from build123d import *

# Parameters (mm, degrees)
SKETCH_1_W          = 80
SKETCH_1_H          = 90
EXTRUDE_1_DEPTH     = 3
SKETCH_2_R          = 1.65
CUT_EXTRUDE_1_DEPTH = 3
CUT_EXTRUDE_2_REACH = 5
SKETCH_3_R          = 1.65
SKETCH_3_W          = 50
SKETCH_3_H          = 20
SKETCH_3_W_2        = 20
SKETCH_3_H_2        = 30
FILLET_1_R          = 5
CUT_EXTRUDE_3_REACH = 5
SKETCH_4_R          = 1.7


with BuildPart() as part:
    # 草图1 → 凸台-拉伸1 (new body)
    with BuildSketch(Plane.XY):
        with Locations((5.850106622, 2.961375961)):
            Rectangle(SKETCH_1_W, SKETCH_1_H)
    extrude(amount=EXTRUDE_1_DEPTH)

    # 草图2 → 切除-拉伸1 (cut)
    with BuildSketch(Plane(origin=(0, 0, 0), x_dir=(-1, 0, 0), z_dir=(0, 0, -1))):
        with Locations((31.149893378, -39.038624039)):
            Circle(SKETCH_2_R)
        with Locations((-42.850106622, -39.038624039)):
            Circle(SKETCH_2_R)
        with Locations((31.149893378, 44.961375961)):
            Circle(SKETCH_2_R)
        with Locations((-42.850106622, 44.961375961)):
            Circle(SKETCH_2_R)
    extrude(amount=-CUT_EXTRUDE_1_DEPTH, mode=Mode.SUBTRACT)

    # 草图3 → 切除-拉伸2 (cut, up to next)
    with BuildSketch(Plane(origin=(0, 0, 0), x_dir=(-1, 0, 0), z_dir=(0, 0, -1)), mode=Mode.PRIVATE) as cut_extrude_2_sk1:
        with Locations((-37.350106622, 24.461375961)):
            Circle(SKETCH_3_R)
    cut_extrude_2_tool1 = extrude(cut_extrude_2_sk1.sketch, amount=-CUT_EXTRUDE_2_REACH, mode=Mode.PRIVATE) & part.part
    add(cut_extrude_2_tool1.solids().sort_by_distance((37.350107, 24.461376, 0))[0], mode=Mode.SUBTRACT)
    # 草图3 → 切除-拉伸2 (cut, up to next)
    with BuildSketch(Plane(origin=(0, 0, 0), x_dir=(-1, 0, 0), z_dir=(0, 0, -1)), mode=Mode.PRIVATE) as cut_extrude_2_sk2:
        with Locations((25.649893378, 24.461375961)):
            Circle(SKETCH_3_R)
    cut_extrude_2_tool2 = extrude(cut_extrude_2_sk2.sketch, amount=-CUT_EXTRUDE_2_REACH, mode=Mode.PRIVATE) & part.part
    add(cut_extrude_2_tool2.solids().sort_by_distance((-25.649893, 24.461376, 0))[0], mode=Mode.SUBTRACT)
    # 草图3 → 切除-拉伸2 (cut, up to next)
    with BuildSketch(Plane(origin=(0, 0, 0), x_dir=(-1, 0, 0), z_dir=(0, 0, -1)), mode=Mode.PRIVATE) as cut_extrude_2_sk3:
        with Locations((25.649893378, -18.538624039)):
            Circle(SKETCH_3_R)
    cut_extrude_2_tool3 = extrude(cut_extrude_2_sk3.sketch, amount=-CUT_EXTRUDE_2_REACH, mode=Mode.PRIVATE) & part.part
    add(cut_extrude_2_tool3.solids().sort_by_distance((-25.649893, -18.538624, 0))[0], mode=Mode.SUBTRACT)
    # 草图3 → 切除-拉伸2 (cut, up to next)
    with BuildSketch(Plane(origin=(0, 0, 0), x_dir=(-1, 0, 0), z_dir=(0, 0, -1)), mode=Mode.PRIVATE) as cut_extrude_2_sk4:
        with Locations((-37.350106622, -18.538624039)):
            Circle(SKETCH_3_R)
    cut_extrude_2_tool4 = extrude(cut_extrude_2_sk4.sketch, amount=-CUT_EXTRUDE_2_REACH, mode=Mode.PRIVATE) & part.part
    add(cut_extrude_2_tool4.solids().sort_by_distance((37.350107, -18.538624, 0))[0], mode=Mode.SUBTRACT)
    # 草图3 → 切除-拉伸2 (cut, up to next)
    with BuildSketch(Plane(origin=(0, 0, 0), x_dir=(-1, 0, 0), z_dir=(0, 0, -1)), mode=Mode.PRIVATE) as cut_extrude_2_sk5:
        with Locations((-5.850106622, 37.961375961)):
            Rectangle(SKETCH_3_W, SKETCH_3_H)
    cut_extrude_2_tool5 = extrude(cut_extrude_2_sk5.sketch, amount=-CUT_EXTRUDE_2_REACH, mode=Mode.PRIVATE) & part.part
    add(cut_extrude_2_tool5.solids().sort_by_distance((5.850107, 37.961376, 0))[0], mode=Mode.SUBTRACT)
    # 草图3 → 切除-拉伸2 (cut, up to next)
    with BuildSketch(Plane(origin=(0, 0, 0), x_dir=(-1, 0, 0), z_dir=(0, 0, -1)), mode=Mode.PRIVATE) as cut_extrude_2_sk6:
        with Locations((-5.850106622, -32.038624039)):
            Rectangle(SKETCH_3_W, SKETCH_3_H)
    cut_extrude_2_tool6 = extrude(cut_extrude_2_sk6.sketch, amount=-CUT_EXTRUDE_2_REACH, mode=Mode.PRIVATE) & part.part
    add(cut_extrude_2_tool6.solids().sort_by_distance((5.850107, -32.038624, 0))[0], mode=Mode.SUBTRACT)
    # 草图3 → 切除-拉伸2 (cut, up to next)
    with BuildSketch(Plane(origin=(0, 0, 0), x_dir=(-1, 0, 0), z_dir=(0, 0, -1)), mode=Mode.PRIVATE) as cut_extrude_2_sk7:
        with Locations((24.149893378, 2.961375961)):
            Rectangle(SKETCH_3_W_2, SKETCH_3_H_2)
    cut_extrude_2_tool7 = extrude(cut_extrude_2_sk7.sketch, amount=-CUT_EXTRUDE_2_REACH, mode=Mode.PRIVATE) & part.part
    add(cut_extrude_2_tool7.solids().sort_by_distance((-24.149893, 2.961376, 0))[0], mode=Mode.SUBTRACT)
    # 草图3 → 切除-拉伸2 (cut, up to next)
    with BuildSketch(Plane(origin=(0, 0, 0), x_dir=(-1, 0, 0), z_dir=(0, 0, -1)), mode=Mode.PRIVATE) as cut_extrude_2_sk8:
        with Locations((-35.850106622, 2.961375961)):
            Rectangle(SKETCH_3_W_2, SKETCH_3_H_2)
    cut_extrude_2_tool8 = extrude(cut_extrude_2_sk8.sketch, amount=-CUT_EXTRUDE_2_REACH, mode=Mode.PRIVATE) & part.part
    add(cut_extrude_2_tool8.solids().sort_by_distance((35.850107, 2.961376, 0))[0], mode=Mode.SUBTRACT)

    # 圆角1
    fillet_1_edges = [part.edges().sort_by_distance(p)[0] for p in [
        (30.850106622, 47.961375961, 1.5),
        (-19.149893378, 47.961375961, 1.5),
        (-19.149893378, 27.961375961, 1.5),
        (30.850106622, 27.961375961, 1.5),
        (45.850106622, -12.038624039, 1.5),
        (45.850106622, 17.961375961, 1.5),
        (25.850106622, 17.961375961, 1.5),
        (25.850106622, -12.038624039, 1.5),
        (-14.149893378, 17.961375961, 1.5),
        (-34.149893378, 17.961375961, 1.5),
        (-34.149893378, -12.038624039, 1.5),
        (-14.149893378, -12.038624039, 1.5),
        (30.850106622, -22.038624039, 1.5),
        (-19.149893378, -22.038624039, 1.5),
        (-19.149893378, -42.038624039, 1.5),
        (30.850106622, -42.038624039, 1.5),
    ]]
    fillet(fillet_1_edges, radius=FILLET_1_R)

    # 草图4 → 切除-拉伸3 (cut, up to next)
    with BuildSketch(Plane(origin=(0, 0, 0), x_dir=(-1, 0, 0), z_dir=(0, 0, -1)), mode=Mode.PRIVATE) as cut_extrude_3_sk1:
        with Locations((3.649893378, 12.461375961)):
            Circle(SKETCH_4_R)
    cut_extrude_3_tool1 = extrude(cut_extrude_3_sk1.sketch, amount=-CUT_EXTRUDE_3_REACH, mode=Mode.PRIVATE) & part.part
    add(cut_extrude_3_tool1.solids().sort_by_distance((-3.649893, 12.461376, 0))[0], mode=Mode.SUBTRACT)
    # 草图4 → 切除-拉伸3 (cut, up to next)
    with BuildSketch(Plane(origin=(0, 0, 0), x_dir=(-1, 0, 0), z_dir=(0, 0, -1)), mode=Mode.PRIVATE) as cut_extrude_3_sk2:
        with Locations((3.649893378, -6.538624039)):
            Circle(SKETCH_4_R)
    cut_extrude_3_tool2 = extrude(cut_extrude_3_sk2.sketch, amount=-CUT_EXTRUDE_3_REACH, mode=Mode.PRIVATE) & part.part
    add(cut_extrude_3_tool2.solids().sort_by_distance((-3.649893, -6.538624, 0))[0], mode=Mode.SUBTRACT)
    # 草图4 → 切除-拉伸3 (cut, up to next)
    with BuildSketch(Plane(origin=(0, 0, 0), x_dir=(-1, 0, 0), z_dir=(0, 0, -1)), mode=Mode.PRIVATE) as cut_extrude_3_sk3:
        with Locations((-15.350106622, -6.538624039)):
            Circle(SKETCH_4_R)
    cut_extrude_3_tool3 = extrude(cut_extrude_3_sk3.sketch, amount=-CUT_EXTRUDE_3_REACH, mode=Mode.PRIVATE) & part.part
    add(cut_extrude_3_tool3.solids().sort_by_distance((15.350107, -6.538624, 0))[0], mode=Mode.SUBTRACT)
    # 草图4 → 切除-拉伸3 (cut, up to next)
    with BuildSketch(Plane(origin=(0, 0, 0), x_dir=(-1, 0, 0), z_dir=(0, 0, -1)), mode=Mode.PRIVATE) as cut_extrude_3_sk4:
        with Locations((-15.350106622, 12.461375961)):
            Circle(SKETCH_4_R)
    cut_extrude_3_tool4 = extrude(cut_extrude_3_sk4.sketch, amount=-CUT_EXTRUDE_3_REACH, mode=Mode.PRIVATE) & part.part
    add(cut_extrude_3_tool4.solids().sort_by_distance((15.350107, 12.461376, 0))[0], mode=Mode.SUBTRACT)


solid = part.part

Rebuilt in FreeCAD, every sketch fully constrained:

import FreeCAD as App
import Part
import Sketcher
from FreeCAD import Vector
Q = App.Units.Quantity


def edges_at(feature, points):
    """Names of the edges that pass closest to the given points."""
    edges = feature.Shape.Edges
    near = lambda p: min(range(len(edges)), key=lambda i: edges[i].distToShape(Part.Vertex(*p))[0])
    return sorted({f"Edge{near(p) + 1}" for p in points})

doc = App.newDocument("Part")
params = doc.addObject("Spreadsheet::Sheet", "Params")
for row, (alias, value) in enumerate([
    ("sketch1_width", "80 mm"),
    ("sketch1_height", "90 mm"),
    ("pad1_length", "3 mm"),
    ("sketch2_diameter", "3.3 mm"),
    ("pocket1_length", "3 mm"),
    ("sketch3_diameter", "3.3 mm"),
    ("sketch4_diameter", "3.3 mm"),
    ("sketch5_diameter", "3.3 mm"),
    ("sketch6_diameter", "3.3 mm"),
    ("sketch7_width", "50 mm"),
    ("sketch7_height", "20 mm"),
    ("sketch8_width", "50 mm"),
    ("sketch8_height", "20 mm"),
    ("sketch9_width", "20 mm"),
    ("sketch9_height", "30 mm"),
    ("sketch10_width", "20 mm"),
    ("sketch10_height", "30 mm"),
    ("fillet_radius", "5 mm"),
    ("sketch11_diameter", "3.4 mm"),
    ("sketch12_diameter", "3.4 mm"),
    ("sketch13_diameter", "3.4 mm"),
    ("sketch14_diameter", "3.4 mm"),
], start=1):
    params.set(f"A{row}", alias)
    params.set(f"B{row}", "=" + value)
    params.setAlias(f"B{row}", alias)

body = doc.addObject("PartDesign::Body", "Body")

sketch1 = doc.addObject("Sketcher::SketchObject", "Sketch")
body.addObject(sketch1)
sketch1.AttachmentSupport = (doc.XY_Plane, [""])
sketch1.MapMode = "FlatFace"
sketch1.addGeometry(Part.LineSegment(Vector(-34.149893, 47.961376, 0), Vector(-34.149893, -42.038624, 0)), False)
sketch1.addGeometry(Part.LineSegment(Vector(-34.149893, -42.038624, 0), Vector(45.850107, -42.038624, 0)), False)
sketch1.addGeometry(Part.LineSegment(Vector(45.850107, -42.038624, 0), Vector(45.850107, 47.961376, 0)), False)
sketch1.addGeometry(Part.LineSegment(Vector(45.850107, 47.961376, 0), Vector(-34.149893, 47.961376, 0)), False)
sketch1.addConstraint(Sketcher.Constraint("Coincident", 0, 2, 1, 1))
sketch1.addConstraint(Sketcher.Constraint("Coincident", 1, 2, 2, 1))
sketch1.addConstraint(Sketcher.Constraint("Coincident", 2, 2, 3, 1))
sketch1.addConstraint(Sketcher.Constraint("Coincident", 3, 2, 0, 1))
sketch1.addConstraint(Sketcher.Constraint("Vertical", 0))
sketch1.addConstraint(Sketcher.Constraint("Horizontal", 1))
sketch1.addConstraint(Sketcher.Constraint("Vertical", 2))
sketch1.addConstraint(Sketcher.Constraint("Horizontal", 3))
sketch1.addConstraint(Sketcher.Constraint("DistanceX", 1, 1, 1, 2, Q("80 mm")))
sketch1.addConstraint(Sketcher.Constraint("DistanceY", 0, 2, 0, 1, Q("90 mm")))
sketch1.addConstraint(Sketcher.Constraint("DistanceX", 0, 2, -1, 1, Q("34.149893 mm")))
sketch1.addConstraint(Sketcher.Constraint("DistanceY", 0, 2, -1, 1, Q("42.038624 mm")))
sketch1.setExpression("Constraints[8]", "Params.sketch1_width")
sketch1.setExpression("Constraints[9]", "Params.sketch1_height")
pad1 = doc.addObject("PartDesign::Pad", "Pad")
body.addObject(pad1)
pad1.Profile = sketch1
pad1.setExpression("Length", "Params.pad1_length")

sketch2 = doc.addObject("Sketcher::SketchObject", "Sketch001")
body.addObject(sketch2)
sketch2.AttachmentSupport = (doc.XY_Plane, [""])
sketch2.MapMode = "FlatFace"
sketch2.addGeometry(Part.Circle(Vector(-31.149893, -39.038624, 0), Vector(0, 0, 1), 1.65), False)
sketch2.addGeometry(Part.Circle(Vector(42.850107, -39.038624, 0), Vector(0, 0, 1), 1.65), False)
sketch2.addGeometry(Part.Circle(Vector(-31.149893, 44.961376, 0), Vector(0, 0, 1), 1.65), False)
sketch2.addGeometry(Part.Circle(Vector(42.850107, 44.961376, 0), Vector(0, 0, 1), 1.65), False)
sketch2.addConstraint(Sketcher.Constraint("Equal", 0, 1))
sketch2.addConstraint(Sketcher.Constraint("Equal", 1, 2))
sketch2.addConstraint(Sketcher.Constraint("Equal", 2, 3))
sketch2.addConstraint(Sketcher.Constraint("Horizontal", 0, 3, 1, 3))
sketch2.addConstraint(Sketcher.Constraint("Horizontal", 2, 3, 3, 3))
sketch2.addConstraint(Sketcher.Constraint("Vertical", 0, 3, 2, 3))
sketch2.addConstraint(Sketcher.Constraint("Vertical", 1, 3, 3, 3))
sketch2.addConstraint(Sketcher.Constraint("Diameter", 0, Q("3.3 mm")))
sketch2.addConstraint(Sketcher.Constraint("DistanceX", 0, 3, 1, 3, Q("74 mm")))
sketch2.addConstraint(Sketcher.Constraint("DistanceY", 0, 3, 2, 3, Q("84 mm")))
sketch2.addConstraint(Sketcher.Constraint("DistanceX", 0, 3, -1, 1, Q("31.149893 mm")))
sketch2.addConstraint(Sketcher.Constraint("DistanceY", 0, 3, -1, 1, Q("39.038624 mm")))
sketch2.setExpression("Constraints[7]", "Params.sketch2_diameter")
pocket1 = doc.addObject("PartDesign::Pocket", "Pocket")
body.addObject(pocket1)
pocket1.Profile = sketch2
pocket1.setExpression("Length", "Params.pocket1_length")
pocket1.Reversed = True

sketch3 = doc.addObject("Sketcher::SketchObject", "Sketch002")
body.addObject(sketch3)
sketch3.AttachmentSupport = (doc.XY_Plane, [""])
sketch3.MapMode = "FlatFace"
sketch3.addGeometry(Part.Circle(Vector(37.350107, 24.461376, 0), Vector(0, 0, 1), 1.65), False)
sketch3.addConstraint(Sketcher.Constraint("Diameter", 0, Q("3.3 mm")))
sketch3.addConstraint(Sketcher.Constraint("DistanceX", -1, 1, 0, 3, Q("37.350107 mm")))
sketch3.addConstraint(Sketcher.Constraint("DistanceY", -1, 1, 0, 3, Q("24.461376 mm")))
sketch3.setExpression("Constraints[0]", "Params.sketch3_diameter")
pocket2 = doc.addObject("PartDesign::Pocket", "Pocket001")
body.addObject(pocket2)
pocket2.Profile = sketch3
pocket2.Type = "UpToFirst"
pocket2.Reversed = True

sketch4 = doc.addObject("Sketcher::SketchObject", "Sketch003")
body.addObject(sketch4)
sketch4.AttachmentSupport = (doc.XY_Plane, [""])
sketch4.MapMode = "FlatFace"
sketch4.addGeometry(Part.Circle(Vector(-25.649893, 24.461376, 0), Vector(0, 0, 1), 1.65), False)
sketch4.addConstraint(Sketcher.Constraint("Diameter", 0, Q("3.3 mm")))
sketch4.addConstraint(Sketcher.Constraint("DistanceX", 0, 3, -1, 1, Q("25.649893 mm")))
sketch4.addConstraint(Sketcher.Constraint("DistanceY", -1, 1, 0, 3, Q("24.461376 mm")))
sketch4.setExpression("Constraints[0]", "Params.sketch4_diameter")
pocket3 = doc.addObject("PartDesign::Pocket", "Pocket002")
body.addObject(pocket3)
pocket3.Profile = sketch4
pocket3.Type = "UpToFirst"
pocket3.Reversed = True

sketch5 = doc.addObject("Sketcher::SketchObject", "Sketch004")
body.addObject(sketch5)
sketch5.AttachmentSupport = (doc.XY_Plane, [""])
sketch5.MapMode = "FlatFace"
sketch5.addGeometry(Part.Circle(Vector(-25.649893, -18.538624, 0), Vector(0, 0, 1), 1.65), False)
sketch5.addConstraint(Sketcher.Constraint("Diameter", 0, Q("3.3 mm")))
sketch5.addConstraint(Sketcher.Constraint("DistanceX", 0, 3, -1, 1, Q("25.649893 mm")))
sketch5.addConstraint(Sketcher.Constraint("DistanceY", 0, 3, -1, 1, Q("18.538624 mm")))
sketch5.setExpression("Constraints[0]", "Params.sketch5_diameter")
pocket4 = doc.addObject("PartDesign::Pocket", "Pocket003")
body.addObject(pocket4)
pocket4.Profile = sketch5
pocket4.Type = "UpToFirst"
pocket4.Reversed = True

sketch6 = doc.addObject("Sketcher::SketchObject", "Sketch005")
body.addObject(sketch6)
sketch6.AttachmentSupport = (doc.XY_Plane, [""])
sketch6.MapMode = "FlatFace"
sketch6.addGeometry(Part.Circle(Vector(37.350107, -18.538624, 0), Vector(0, 0, 1), 1.65), False)
sketch6.addConstraint(Sketcher.Constraint("Diameter", 0, Q("3.3 mm")))
sketch6.addConstraint(Sketcher.Constraint("DistanceX", -1, 1, 0, 3, Q("37.350107 mm")))
sketch6.addConstraint(Sketcher.Constraint("DistanceY", 0, 3, -1, 1, Q("18.538624 mm")))
sketch6.setExpression("Constraints[0]", "Params.sketch6_diameter")
pocket5 = doc.addObject("PartDesign::Pocket", "Pocket004")
body.addObject(pocket5)
pocket5.Profile = sketch6
pocket5.Type = "UpToFirst"
pocket5.Reversed = True

sketch7 = doc.addObject("Sketcher::SketchObject", "Sketch006")
body.addObject(sketch7)
sketch7.AttachmentSupport = (doc.XY_Plane, [""])
sketch7.MapMode = "FlatFace"
sketch7.addGeometry(Part.LineSegment(Vector(30.850107, 47.961376, 0), Vector(30.850107, 27.961376, 0)), False)
sketch7.addGeometry(Part.LineSegment(Vector(30.850107, 27.961376, 0), Vector(-19.149893, 27.961376, 0)), False)
sketch7.addGeometry(Part.LineSegment(Vector(-19.149893, 27.961376, 0), Vector(-19.149893, 47.961376, 0)), False)
sketch7.addGeometry(Part.LineSegment(Vector(-19.149893, 47.961376, 0), Vector(30.850107, 47.961376, 0)), False)
sketch7.addConstraint(Sketcher.Constraint("Coincident", 0, 2, 1, 1))
sketch7.addConstraint(Sketcher.Constraint("Coincident", 1, 2, 2, 1))
sketch7.addConstraint(Sketcher.Constraint("Coincident", 2, 2, 3, 1))
sketch7.addConstraint(Sketcher.Constraint("Coincident", 3, 2, 0, 1))
sketch7.addConstraint(Sketcher.Constraint("Vertical", 0))
sketch7.addConstraint(Sketcher.Constraint("Horizontal", 1))
sketch7.addConstraint(Sketcher.Constraint("Vertical", 2))
sketch7.addConstraint(Sketcher.Constraint("Horizontal", 3))
sketch7.addConstraint(Sketcher.Constraint("DistanceX", 1, 2, 1, 1, Q("50 mm")))
sketch7.addConstraint(Sketcher.Constraint("DistanceY", 0, 2, 0, 1, Q("20 mm")))
sketch7.addConstraint(Sketcher.Constraint("DistanceX", -1, 1, 0, 2, Q("30.850107 mm")))
sketch7.addConstraint(Sketcher.Constraint("DistanceY", -1, 1, 0, 2, Q("27.961376 mm")))
sketch7.setExpression("Constraints[8]", "Params.sketch7_width")
sketch7.setExpression("Constraints[9]", "Params.sketch7_height")
pocket6 = doc.addObject("PartDesign::Pocket", "Pocket005")
body.addObject(pocket6)
pocket6.Profile = sketch7
pocket6.Type = "UpToFirst"
pocket6.Reversed = True

sketch8 = doc.addObject("Sketcher::SketchObject", "Sketch007")
body.addObject(sketch8)
sketch8.AttachmentSupport = (doc.XY_Plane, [""])
sketch8.MapMode = "FlatFace"
sketch8.addGeometry(Part.LineSegment(Vector(30.850107, -22.038624, 0), Vector(30.850107, -42.038624, 0)), False)
sketch8.addGeometry(Part.LineSegment(Vector(30.850107, -42.038624, 0), Vector(-19.149893, -42.038624, 0)), False)
sketch8.addGeometry(Part.LineSegment(Vector(-19.149893, -42.038624, 0), Vector(-19.149893, -22.038624, 0)), False)
sketch8.addGeometry(Part.LineSegment(Vector(-19.149893, -22.038624, 0), Vector(30.850107, -22.038624, 0)), False)
sketch8.addConstraint(Sketcher.Constraint("Coincident", 0, 2, 1, 1))
sketch8.addConstraint(Sketcher.Constraint("Coincident", 1, 2, 2, 1))
sketch8.addConstraint(Sketcher.Constraint("Coincident", 2, 2, 3, 1))
sketch8.addConstraint(Sketcher.Constraint("Coincident", 3, 2, 0, 1))
sketch8.addConstraint(Sketcher.Constraint("Vertical", 0))
sketch8.addConstraint(Sketcher.Constraint("Horizontal", 1))
sketch8.addConstraint(Sketcher.Constraint("Vertical", 2))
sketch8.addConstraint(Sketcher.Constraint("Horizontal", 3))
sketch8.addConstraint(Sketcher.Constraint("DistanceX", 1, 2, 1, 1, Q("50 mm")))
sketch8.addConstraint(Sketcher.Constraint("DistanceY", 0, 2, 0, 1, Q("20 mm")))
sketch8.addConstraint(Sketcher.Constraint("DistanceX", -1, 1, 0, 2, Q("30.850107 mm")))
sketch8.addConstraint(Sketcher.Constraint("DistanceY", 0, 2, -1, 1, Q("42.038624 mm")))
sketch8.setExpression("Constraints[8]", "Params.sketch8_width")
sketch8.setExpression("Constraints[9]", "Params.sketch8_height")
pocket7 = doc.addObject("PartDesign::Pocket", "Pocket006")
body.addObject(pocket7)
pocket7.Profile = sketch8
pocket7.Type = "UpToFirst"
pocket7.Reversed = True

sketch9 = doc.addObject("Sketcher::SketchObject", "Sketch008")
body.addObject(sketch9)
sketch9.AttachmentSupport = (doc.XY_Plane, [""])
sketch9.MapMode = "FlatFace"
sketch9.addGeometry(Part.LineSegment(Vector(-14.149893, 17.961376, 0), Vector(-14.149893, -12.038624, 0)), False)
sketch9.addGeometry(Part.LineSegment(Vector(-14.149893, -12.038624, 0), Vector(-34.149893, -12.038624, 0)), False)
sketch9.addGeometry(Part.LineSegment(Vector(-34.149893, -12.038624, 0), Vector(-34.149893, 17.961376, 0)), False)
sketch9.addGeometry(Part.LineSegment(Vector(-34.149893, 17.961376, 0), Vector(-14.149893, 17.961376, 0)), False)
sketch9.addConstraint(Sketcher.Constraint("Coincident", 0, 2, 1, 1))
sketch9.addConstraint(Sketcher.Constraint("Coincident", 1, 2, 2, 1))
sketch9.addConstraint(Sketcher.Constraint("Coincident", 2, 2, 3, 1))
sketch9.addConstraint(Sketcher.Constraint("Coincident", 3, 2, 0, 1))
sketch9.addConstraint(Sketcher.Constraint("Vertical", 0))
sketch9.addConstraint(Sketcher.Constraint("Horizontal", 1))
sketch9.addConstraint(Sketcher.Constraint("Vertical", 2))
sketch9.addConstraint(Sketcher.Constraint("Horizontal", 3))
sketch9.addConstraint(Sketcher.Constraint("DistanceX", 1, 2, 1, 1, Q("20 mm")))
sketch9.addConstraint(Sketcher.Constraint("DistanceY", 0, 2, 0, 1, Q("30 mm")))
sketch9.addConstraint(Sketcher.Constraint("DistanceX", 0, 2, -1, 1, Q("14.149893 mm")))
sketch9.addConstraint(Sketcher.Constraint("DistanceY", 0, 2, -1, 1, Q("12.038624 mm")))
sketch9.setExpression("Constraints[8]", "Params.sketch9_width")
sketch9.setExpression("Constraints[9]", "Params.sketch9_height")
pocket8 = doc.addObject("PartDesign::Pocket", "Pocket007")
body.addObject(pocket8)
pocket8.Profile = sketch9
pocket8.Type = "UpToFirst"
pocket8.Reversed = True

sketch10 = doc.addObject("Sketcher::SketchObject", "Sketch009")
body.addObject(sketch10)
sketch10.AttachmentSupport = (doc.XY_Plane, [""])
sketch10.MapMode = "FlatFace"
sketch10.addGeometry(Part.LineSegment(Vector(45.850107, 17.961376, 0), Vector(45.850107, -12.038624, 0)), False)
sketch10.addGeometry(Part.LineSegment(Vector(45.850107, -12.038624, 0), Vector(25.850107, -12.038624, 0)), False)
sketch10.addGeometry(Part.LineSegment(Vector(25.850107, -12.038624, 0), Vector(25.850107, 17.961376, 0)), False)
sketch10.addGeometry(Part.LineSegment(Vector(25.850107, 17.961376, 0), Vector(45.850107, 17.961376, 0)), False)
sketch10.addConstraint(Sketcher.Constraint("Coincident", 0, 2, 1, 1))
sketch10.addConstraint(Sketcher.Constraint("Coincident", 1, 2, 2, 1))
sketch10.addConstraint(Sketcher.Constraint("Coincident", 2, 2, 3, 1))
sketch10.addConstraint(Sketcher.Constraint("Coincident", 3, 2, 0, 1))
sketch10.addConstraint(Sketcher.Constraint("Vertical", 0))
sketch10.addConstraint(Sketcher.Constraint("Horizontal", 1))
sketch10.addConstraint(Sketcher.Constraint("Vertical", 2))
sketch10.addConstraint(Sketcher.Constraint("Horizontal", 3))
sketch10.addConstraint(Sketcher.Constraint("DistanceX", 1, 2, 1, 1, Q("20 mm")))
sketch10.addConstraint(Sketcher.Constraint("DistanceY", 0, 2, 0, 1, Q("30 mm")))
sketch10.addConstraint(Sketcher.Constraint("DistanceX", -1, 1, 0, 2, Q("45.850107 mm")))
sketch10.addConstraint(Sketcher.Constraint("DistanceY", 0, 2, -1, 1, Q("12.038624 mm")))
sketch10.setExpression("Constraints[8]", "Params.sketch10_width")
sketch10.setExpression("Constraints[9]", "Params.sketch10_height")
pocket9 = doc.addObject("PartDesign::Pocket", "Pocket008")
body.addObject(pocket9)
pocket9.Profile = sketch10
pocket9.Type = "UpToFirst"
pocket9.Reversed = True
doc.recompute()

fillet = doc.addObject("PartDesign::Fillet", "Fillet")
body.addObject(fillet)
fillet.Base = (pocket9, edges_at(pocket9, [
    (30.85, 47.961, 1.5),
    (-19.15, 47.961, 1.5),
    (-19.15, 27.961, 1.5),
    (30.85, 27.961, 1.5),
    (45.85, -12.039, 1.5),
    (45.85, 17.961, 1.5),
    (25.85, 17.961, 1.5),
    (25.85, -12.039, 1.5),
    (-14.15, 17.961, 1.5),
    (-34.15, 17.961, 1.5),
    (-34.15, -12.039, 1.5),
    (-14.15, -12.039, 1.5),
    (30.85, -22.039, 1.5),
    (-19.15, -22.039, 1.5),
    (-19.15, -42.039, 1.5),
    (30.85, -42.039, 1.5),
]))
fillet.setExpression("Radius", "Params.fillet_radius")

sketch11 = doc.addObject("Sketcher::SketchObject", "Sketch010")
body.addObject(sketch11)
sketch11.AttachmentSupport = (doc.XY_Plane, [""])
sketch11.MapMode = "FlatFace"
sketch11.addGeometry(Part.Circle(Vector(-3.649893, 12.461376, 0), Vector(0, 0, 1), 1.7), False)
sketch11.addConstraint(Sketcher.Constraint("Diameter", 0, Q("3.4 mm")))
sketch11.addConstraint(Sketcher.Constraint("DistanceX", 0, 3, -1, 1, Q("3.649893 mm")))
sketch11.addConstraint(Sketcher.Constraint("DistanceY", -1, 1, 0, 3, Q("12.461376 mm")))
sketch11.setExpression("Constraints[0]", "Params.sketch11_diameter")
pocket10 = doc.addObject("PartDesign::Pocket", "Pocket009")
body.addObject(pocket10)
pocket10.Profile = sketch11
pocket10.Type = "UpToFirst"
pocket10.Reversed = True

sketch12 = doc.addObject("Sketcher::SketchObject", "Sketch011")
body.addObject(sketch12)
sketch12.AttachmentSupport = (doc.XY_Plane, [""])
sketch12.MapMode = "FlatFace"
sketch12.addGeometry(Part.Circle(Vector(-3.649893, -6.538624, 0), Vector(0, 0, 1), 1.7), False)
sketch12.addConstraint(Sketcher.Constraint("Diameter", 0, Q("3.4 mm")))
sketch12.addConstraint(Sketcher.Constraint("DistanceX", 0, 3, -1, 1, Q("3.649893 mm")))
sketch12.addConstraint(Sketcher.Constraint("DistanceY", 0, 3, -1, 1, Q("6.538624 mm")))
sketch12.setExpression("Constraints[0]", "Params.sketch12_diameter")
pocket11 = doc.addObject("PartDesign::Pocket", "Pocket010")
body.addObject(pocket11)
pocket11.Profile = sketch12
pocket11.Type = "UpToFirst"
pocket11.Reversed = True

sketch13 = doc.addObject("Sketcher::SketchObject", "Sketch012")
body.addObject(sketch13)
sketch13.AttachmentSupport = (doc.XY_Plane, [""])
sketch13.MapMode = "FlatFace"
sketch13.addGeometry(Part.Circle(Vector(15.350107, -6.538624, 0), Vector(0, 0, 1), 1.7), False)
sketch13.addConstraint(Sketcher.Constraint("Diameter", 0, Q("3.4 mm")))
sketch13.addConstraint(Sketcher.Constraint("DistanceX", -1, 1, 0, 3, Q("15.350107 mm")))
sketch13.addConstraint(Sketcher.Constraint("DistanceY", 0, 3, -1, 1, Q("6.538624 mm")))
sketch13.setExpression("Constraints[0]", "Params.sketch13_diameter")
pocket12 = doc.addObject("PartDesign::Pocket", "Pocket011")
body.addObject(pocket12)
pocket12.Profile = sketch13
pocket12.Type = "UpToFirst"
pocket12.Reversed = True

sketch14 = doc.addObject("Sketcher::SketchObject", "Sketch013")
body.addObject(sketch14)
sketch14.AttachmentSupport = (doc.XY_Plane, [""])
sketch14.MapMode = "FlatFace"
sketch14.addGeometry(Part.Circle(Vector(15.350107, 12.461376, 0), Vector(0, 0, 1), 1.7), False)
sketch14.addConstraint(Sketcher.Constraint("Diameter", 0, Q("3.4 mm")))
sketch14.addConstraint(Sketcher.Constraint("DistanceX", -1, 1, 0, 3, Q("15.350107 mm")))
sketch14.addConstraint(Sketcher.Constraint("DistanceY", -1, 1, 0, 3, Q("12.461376 mm")))
sketch14.setExpression("Constraints[0]", "Params.sketch14_diameter")
pocket13 = doc.addObject("PartDesign::Pocket", "Pocket012")
body.addObject(pocket13)
pocket13.Profile = sketch14
pocket13.Type = "UpToFirst"
pocket13.Reversed = True

doc.recompute()
